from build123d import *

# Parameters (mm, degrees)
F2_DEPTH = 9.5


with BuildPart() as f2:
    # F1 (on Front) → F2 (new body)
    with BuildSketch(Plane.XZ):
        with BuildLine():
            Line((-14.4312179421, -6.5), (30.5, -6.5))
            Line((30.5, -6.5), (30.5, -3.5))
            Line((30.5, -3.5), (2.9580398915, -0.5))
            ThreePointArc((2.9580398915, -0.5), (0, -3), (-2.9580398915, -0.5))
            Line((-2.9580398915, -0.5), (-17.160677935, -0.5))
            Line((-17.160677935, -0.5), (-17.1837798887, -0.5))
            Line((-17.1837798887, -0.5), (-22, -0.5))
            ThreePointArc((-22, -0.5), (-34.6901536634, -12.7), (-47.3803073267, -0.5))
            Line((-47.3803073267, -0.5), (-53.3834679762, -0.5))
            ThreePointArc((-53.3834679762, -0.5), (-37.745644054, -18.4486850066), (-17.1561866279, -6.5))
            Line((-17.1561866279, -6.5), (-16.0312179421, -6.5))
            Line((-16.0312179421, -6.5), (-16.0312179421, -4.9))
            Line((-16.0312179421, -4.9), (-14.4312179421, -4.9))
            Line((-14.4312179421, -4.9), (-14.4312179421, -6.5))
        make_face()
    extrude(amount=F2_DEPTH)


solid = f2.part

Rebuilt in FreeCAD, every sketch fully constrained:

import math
import FreeCAD as App
import Part
import Sketcher

V = App.Vector
Q = App.Units.Quantity

doc = App.newDocument("Part")
body = doc.addObject("PartDesign::Body", "Body")

# Sketch on XZ plane
sketch1 = doc.addObject("Sketcher::SketchObject", "Sketch")
body.addObject(sketch1)
sketch1.AttachmentSupport = (doc.XZ_Plane, [""])
sketch1.MapMode = "FlatFace"
sketch1.addGeometry([
    Part.LineSegment(V(-14.431218, -6.5, 0), V(30.5, -6.5, 0)),  # 0
    Part.LineSegment(V(30.5, -6.5, 0), V(30.5, -3.5, 0)),  # 1
    Part.LineSegment(V(30.5, -3.5, 0), V(2.95804, -0.5, 0)),  # 2
    Part.ArcOfCircle(Part.Circle(V(0, 0, 0), V(0, 0, 1), 3), math.radians(-170.405932), math.radians(-9.594068)),  # 3
    Part.LineSegment(V(-2.95804, -0.5, 0), V(-22, -0.5, 0)),  # 4
    Part.ArcOfCircle(Part.Circle(V(-34.690154, 0, 0), V(0, 0, 1), 12.7), math.radians(-177.743678), math.radians(-2.256322)),  # 5
    Part.LineSegment(V(-47.380307, -0.5, 0), V(-53.383468, -0.5, 0)),  # 6
    Part.ArcOfCircle(Part.Circle(V(-34.690154, 0, 0), V(0, 0, 1), 18.7), math.radians(-178.467845), math.radians(-20.340198)),  # 7
    Part.LineSegment(V(-17.156187, -6.5, 0), V(-16.031218, -6.5, 0)),  # 8
    Part.LineSegment(V(-16.031218, -6.5, 0), V(-16.031218, -4.9, 0)),  # 9
    Part.LineSegment(V(-16.031218, -4.9, 0), V(-14.431218, -4.9, 0)),  # 10
    Part.LineSegment(V(-14.431218, -4.9, 0), V(-14.431218, -6.5, 0)),  # 11
], False)
sketch1.addConstraint([
    Sketcher.Constraint("Coincident", 0, 2, 1, 1),
    Sketcher.Constraint("Coincident", 1, 2, 2, 1),
    Sketcher.Constraint("Coincident", 2, 2, 3, 2),
    Sketcher.Constraint("Coincident", 3, 1, 4, 1),
    Sketcher.Constraint("Coincident", 4, 2, 5, 2),
    Sketcher.Constraint("Coincident", 5, 1, 6, 1),
    Sketcher.Constraint("Coincident", 6, 2, 7, 1),
    Sketcher.Constraint("Coincident", 7, 2, 8, 1),
    Sketcher.Constraint("Coincident", 8, 2, 9, 1),
    Sketcher.Constraint("Coincident", 9, 2, 10, 1),
    Sketcher.Constraint("Coincident", 10, 2, 11, 1),
    Sketcher.Constraint("Coincident", 11, 2, 0, 1),
    Sketcher.Constraint("Horizontal", 0),
    Sketcher.Constraint("Vertical", 1),
    Sketcher.Constraint("Horizontal", 4),
    Sketcher.Constraint("Horizontal", 6),
    Sketcher.Constraint("Horizontal", 8),
    Sketcher.Constraint("Vertical", 9),
    Sketcher.Constraint("Horizontal", 10),
    Sketcher.Constraint("Vertical", 11),
    Sketcher.Constraint("Coincident", 3, 3, -1, 1),
    Sketcher.Constraint("Coincident", 7, 3, 5, 3),
    Sketcher.Constraint("PointOnObject", 5, 3, -1),
    Sketcher.Constraint("Horizontal", 2, 2, 3, 1),
    Sketcher.Constraint("Horizontal", 4, 2, 5, 1),
    Sketcher.Constraint("Horizontal", 0, 2, 7, 2),
    Sketcher.Constraint("Equal", 10, 9),
    Sketcher.Constraint("Radius", 3, Q("3 mm")),
    Sketcher.Constraint("Radius", 5, Q("12.7 mm")),
    Sketcher.Constraint("Radius", 7, Q("18.7 mm")),
    Sketcher.Constraint("DistanceY", 1, 1, 1, 2, Q("3 mm")),
    Sketcher.Constraint("DistanceX", 10, 1, 10, 2, Q("1.6 mm")),
    Sketcher.Constraint("DistanceX", 4, 2, -1, 1, Q("22 mm")),
    Sketcher.Constraint("DistanceY", 1, 2, 2, 2, Q("3 mm")),
    Sketcher.Constraint("DistanceX", -1, 1, 0, 2, Q("30.5 mm")),
    Sketcher.Constraint("DistanceY", 0, 2, -1, 1, Q("6.5 mm")),
    Sketcher.Constraint("DistanceX", 8, 1, 8, 2, Q("1.124969 mm")),
])
pad1 = doc.addObject("PartDesign::Pad", "Pad")
body.addObject(pad1)
pad1.Profile = sketch1
pad1.Length = 9.5

doc.recompute()
